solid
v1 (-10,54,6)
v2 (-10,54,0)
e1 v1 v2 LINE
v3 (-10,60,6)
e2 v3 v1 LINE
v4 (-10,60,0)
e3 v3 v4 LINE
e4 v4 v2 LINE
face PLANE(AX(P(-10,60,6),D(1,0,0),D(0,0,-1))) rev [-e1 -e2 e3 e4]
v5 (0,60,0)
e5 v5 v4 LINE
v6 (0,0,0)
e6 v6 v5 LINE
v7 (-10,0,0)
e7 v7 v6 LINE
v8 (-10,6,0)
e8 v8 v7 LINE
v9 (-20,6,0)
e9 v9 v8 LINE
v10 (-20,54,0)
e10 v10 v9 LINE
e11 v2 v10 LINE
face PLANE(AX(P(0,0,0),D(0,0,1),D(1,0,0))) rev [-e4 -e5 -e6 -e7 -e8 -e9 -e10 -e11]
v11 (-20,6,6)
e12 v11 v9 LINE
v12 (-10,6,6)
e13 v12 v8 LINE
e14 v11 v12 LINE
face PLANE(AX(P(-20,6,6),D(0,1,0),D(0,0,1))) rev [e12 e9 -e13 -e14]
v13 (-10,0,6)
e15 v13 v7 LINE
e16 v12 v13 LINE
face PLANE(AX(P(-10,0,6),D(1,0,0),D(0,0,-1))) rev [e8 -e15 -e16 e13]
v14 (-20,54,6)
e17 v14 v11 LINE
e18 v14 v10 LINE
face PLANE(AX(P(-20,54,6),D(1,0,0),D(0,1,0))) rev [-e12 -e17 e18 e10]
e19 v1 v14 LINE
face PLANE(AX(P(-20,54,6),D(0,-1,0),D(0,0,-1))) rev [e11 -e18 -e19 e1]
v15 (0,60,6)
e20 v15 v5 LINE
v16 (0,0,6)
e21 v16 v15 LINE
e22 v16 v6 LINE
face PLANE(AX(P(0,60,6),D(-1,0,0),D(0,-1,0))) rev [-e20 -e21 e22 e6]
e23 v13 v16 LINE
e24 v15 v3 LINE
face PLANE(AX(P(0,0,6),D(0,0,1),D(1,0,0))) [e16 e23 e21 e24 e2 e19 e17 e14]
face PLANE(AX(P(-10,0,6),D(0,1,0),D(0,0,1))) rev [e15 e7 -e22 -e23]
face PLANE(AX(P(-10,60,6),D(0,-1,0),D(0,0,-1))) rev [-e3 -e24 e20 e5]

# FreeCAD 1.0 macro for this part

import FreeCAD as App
import Part
import Sketcher
from FreeCAD import Vector
Q = App.Units.Quantity


def add_polygon(sketch, points):
    """Adds a closed chain of lines whose ends are joined by coincident constraints."""
    first, n = sketch.GeometryCount, len(points)
    for a, b in zip(points, points[1:] + points[:1]):
        sketch.addGeometry(Part.LineSegment(App.Vector(*a, 0), App.Vector(*b, 0)), False)
    for i in range(n):
        sketch.addConstraint(Sketcher.Constraint("Coincident", first + i, 2, first + (i + 1) % n, 1))

doc = App.newDocument("Part")
params = doc.addObject("Spreadsheet::Sheet", "Params")
for row, (alias, value) in enumerate([
    ("sketch1_width", "10 mm"),
    ("sketch1_height", "6 mm"),
    ("sketch1_height2", "48 mm"),
    ("pad1_length", "6 mm"),
], start=1):
    params.set(f"A{row}", alias)
    params.set(f"B{row}", "=" + value)
    params.setAlias(f"B{row}", alias)

body = doc.addObject("PartDesign::Body", "Body")

# Sketch on XY plane
sketch1 = body.newObject("Sketcher::SketchObject", "Sketch")
sketch1.AttachmentSupport = (doc.getObject("XY_Plane"), [""])
sketch1.MapMode = "FlatFace"
add_polygon(sketch1, [(0, 60), (-10, 60), (-10, 54), (-20, 54), (-20, 6), (-10, 6), (-10, 0), (0, 0)])  # lines 0-7
sketch1.addConstraint(Sketcher.Constraint("Horizontal", 0))
sketch1.addConstraint(Sketcher.Constraint("Vertical", 1))
sketch1.addConstraint(Sketcher.Constraint("Horizontal", 2))
sketch1.addConstraint(Sketcher.Constraint("Vertical", 3))
sketch1.addConstraint(Sketcher.Constraint("Horizontal", 4))
sketch1.addConstraint(Sketcher.Constraint("Vertical", 5))
sketch1.addConstraint(Sketcher.Constraint("Horizontal", 6))
sketch1.addConstraint(Sketcher.Constraint("Vertical", 7))
sketch1.addConstraint(Sketcher.Constraint("Coincident", 6, 2, -1, 1))
sketch1.addConstraint(Sketcher.Constraint("Vertical", 1, 2, 4, 2))
sketch1.addConstraint(Sketcher.Constraint("Equal", 0, 2))
sketch1.addConstraint(Sketcher.Constraint("Equal", 1, 5))
sketch1.addConstraint(Sketcher.Constraint("DistanceX", 0, 2, 0, 1, Q("10 mm")))
sketch1.addConstraint(Sketcher.Constraint("DistanceY", 1, 2, 1, 1, Q("6 mm")))
sketch1.addConstraint(Sketcher.Constraint("DistanceY", 3, 2, 3, 1, Q("48 mm")))
sketch1.setExpression("Constraints[20]", "Params.sketch1_width")
sketch1.setExpression("Constraints[21]", "Params.sketch1_height")
sketch1.setExpression("Constraints[22]", "Params.sketch1_height2")
pad1 = body.newObject("PartDesign::Pad", "Pad")
pad1.Profile = sketch1
pad1.setExpression("Length", "Params.pad1_length")

doc.recompute()
